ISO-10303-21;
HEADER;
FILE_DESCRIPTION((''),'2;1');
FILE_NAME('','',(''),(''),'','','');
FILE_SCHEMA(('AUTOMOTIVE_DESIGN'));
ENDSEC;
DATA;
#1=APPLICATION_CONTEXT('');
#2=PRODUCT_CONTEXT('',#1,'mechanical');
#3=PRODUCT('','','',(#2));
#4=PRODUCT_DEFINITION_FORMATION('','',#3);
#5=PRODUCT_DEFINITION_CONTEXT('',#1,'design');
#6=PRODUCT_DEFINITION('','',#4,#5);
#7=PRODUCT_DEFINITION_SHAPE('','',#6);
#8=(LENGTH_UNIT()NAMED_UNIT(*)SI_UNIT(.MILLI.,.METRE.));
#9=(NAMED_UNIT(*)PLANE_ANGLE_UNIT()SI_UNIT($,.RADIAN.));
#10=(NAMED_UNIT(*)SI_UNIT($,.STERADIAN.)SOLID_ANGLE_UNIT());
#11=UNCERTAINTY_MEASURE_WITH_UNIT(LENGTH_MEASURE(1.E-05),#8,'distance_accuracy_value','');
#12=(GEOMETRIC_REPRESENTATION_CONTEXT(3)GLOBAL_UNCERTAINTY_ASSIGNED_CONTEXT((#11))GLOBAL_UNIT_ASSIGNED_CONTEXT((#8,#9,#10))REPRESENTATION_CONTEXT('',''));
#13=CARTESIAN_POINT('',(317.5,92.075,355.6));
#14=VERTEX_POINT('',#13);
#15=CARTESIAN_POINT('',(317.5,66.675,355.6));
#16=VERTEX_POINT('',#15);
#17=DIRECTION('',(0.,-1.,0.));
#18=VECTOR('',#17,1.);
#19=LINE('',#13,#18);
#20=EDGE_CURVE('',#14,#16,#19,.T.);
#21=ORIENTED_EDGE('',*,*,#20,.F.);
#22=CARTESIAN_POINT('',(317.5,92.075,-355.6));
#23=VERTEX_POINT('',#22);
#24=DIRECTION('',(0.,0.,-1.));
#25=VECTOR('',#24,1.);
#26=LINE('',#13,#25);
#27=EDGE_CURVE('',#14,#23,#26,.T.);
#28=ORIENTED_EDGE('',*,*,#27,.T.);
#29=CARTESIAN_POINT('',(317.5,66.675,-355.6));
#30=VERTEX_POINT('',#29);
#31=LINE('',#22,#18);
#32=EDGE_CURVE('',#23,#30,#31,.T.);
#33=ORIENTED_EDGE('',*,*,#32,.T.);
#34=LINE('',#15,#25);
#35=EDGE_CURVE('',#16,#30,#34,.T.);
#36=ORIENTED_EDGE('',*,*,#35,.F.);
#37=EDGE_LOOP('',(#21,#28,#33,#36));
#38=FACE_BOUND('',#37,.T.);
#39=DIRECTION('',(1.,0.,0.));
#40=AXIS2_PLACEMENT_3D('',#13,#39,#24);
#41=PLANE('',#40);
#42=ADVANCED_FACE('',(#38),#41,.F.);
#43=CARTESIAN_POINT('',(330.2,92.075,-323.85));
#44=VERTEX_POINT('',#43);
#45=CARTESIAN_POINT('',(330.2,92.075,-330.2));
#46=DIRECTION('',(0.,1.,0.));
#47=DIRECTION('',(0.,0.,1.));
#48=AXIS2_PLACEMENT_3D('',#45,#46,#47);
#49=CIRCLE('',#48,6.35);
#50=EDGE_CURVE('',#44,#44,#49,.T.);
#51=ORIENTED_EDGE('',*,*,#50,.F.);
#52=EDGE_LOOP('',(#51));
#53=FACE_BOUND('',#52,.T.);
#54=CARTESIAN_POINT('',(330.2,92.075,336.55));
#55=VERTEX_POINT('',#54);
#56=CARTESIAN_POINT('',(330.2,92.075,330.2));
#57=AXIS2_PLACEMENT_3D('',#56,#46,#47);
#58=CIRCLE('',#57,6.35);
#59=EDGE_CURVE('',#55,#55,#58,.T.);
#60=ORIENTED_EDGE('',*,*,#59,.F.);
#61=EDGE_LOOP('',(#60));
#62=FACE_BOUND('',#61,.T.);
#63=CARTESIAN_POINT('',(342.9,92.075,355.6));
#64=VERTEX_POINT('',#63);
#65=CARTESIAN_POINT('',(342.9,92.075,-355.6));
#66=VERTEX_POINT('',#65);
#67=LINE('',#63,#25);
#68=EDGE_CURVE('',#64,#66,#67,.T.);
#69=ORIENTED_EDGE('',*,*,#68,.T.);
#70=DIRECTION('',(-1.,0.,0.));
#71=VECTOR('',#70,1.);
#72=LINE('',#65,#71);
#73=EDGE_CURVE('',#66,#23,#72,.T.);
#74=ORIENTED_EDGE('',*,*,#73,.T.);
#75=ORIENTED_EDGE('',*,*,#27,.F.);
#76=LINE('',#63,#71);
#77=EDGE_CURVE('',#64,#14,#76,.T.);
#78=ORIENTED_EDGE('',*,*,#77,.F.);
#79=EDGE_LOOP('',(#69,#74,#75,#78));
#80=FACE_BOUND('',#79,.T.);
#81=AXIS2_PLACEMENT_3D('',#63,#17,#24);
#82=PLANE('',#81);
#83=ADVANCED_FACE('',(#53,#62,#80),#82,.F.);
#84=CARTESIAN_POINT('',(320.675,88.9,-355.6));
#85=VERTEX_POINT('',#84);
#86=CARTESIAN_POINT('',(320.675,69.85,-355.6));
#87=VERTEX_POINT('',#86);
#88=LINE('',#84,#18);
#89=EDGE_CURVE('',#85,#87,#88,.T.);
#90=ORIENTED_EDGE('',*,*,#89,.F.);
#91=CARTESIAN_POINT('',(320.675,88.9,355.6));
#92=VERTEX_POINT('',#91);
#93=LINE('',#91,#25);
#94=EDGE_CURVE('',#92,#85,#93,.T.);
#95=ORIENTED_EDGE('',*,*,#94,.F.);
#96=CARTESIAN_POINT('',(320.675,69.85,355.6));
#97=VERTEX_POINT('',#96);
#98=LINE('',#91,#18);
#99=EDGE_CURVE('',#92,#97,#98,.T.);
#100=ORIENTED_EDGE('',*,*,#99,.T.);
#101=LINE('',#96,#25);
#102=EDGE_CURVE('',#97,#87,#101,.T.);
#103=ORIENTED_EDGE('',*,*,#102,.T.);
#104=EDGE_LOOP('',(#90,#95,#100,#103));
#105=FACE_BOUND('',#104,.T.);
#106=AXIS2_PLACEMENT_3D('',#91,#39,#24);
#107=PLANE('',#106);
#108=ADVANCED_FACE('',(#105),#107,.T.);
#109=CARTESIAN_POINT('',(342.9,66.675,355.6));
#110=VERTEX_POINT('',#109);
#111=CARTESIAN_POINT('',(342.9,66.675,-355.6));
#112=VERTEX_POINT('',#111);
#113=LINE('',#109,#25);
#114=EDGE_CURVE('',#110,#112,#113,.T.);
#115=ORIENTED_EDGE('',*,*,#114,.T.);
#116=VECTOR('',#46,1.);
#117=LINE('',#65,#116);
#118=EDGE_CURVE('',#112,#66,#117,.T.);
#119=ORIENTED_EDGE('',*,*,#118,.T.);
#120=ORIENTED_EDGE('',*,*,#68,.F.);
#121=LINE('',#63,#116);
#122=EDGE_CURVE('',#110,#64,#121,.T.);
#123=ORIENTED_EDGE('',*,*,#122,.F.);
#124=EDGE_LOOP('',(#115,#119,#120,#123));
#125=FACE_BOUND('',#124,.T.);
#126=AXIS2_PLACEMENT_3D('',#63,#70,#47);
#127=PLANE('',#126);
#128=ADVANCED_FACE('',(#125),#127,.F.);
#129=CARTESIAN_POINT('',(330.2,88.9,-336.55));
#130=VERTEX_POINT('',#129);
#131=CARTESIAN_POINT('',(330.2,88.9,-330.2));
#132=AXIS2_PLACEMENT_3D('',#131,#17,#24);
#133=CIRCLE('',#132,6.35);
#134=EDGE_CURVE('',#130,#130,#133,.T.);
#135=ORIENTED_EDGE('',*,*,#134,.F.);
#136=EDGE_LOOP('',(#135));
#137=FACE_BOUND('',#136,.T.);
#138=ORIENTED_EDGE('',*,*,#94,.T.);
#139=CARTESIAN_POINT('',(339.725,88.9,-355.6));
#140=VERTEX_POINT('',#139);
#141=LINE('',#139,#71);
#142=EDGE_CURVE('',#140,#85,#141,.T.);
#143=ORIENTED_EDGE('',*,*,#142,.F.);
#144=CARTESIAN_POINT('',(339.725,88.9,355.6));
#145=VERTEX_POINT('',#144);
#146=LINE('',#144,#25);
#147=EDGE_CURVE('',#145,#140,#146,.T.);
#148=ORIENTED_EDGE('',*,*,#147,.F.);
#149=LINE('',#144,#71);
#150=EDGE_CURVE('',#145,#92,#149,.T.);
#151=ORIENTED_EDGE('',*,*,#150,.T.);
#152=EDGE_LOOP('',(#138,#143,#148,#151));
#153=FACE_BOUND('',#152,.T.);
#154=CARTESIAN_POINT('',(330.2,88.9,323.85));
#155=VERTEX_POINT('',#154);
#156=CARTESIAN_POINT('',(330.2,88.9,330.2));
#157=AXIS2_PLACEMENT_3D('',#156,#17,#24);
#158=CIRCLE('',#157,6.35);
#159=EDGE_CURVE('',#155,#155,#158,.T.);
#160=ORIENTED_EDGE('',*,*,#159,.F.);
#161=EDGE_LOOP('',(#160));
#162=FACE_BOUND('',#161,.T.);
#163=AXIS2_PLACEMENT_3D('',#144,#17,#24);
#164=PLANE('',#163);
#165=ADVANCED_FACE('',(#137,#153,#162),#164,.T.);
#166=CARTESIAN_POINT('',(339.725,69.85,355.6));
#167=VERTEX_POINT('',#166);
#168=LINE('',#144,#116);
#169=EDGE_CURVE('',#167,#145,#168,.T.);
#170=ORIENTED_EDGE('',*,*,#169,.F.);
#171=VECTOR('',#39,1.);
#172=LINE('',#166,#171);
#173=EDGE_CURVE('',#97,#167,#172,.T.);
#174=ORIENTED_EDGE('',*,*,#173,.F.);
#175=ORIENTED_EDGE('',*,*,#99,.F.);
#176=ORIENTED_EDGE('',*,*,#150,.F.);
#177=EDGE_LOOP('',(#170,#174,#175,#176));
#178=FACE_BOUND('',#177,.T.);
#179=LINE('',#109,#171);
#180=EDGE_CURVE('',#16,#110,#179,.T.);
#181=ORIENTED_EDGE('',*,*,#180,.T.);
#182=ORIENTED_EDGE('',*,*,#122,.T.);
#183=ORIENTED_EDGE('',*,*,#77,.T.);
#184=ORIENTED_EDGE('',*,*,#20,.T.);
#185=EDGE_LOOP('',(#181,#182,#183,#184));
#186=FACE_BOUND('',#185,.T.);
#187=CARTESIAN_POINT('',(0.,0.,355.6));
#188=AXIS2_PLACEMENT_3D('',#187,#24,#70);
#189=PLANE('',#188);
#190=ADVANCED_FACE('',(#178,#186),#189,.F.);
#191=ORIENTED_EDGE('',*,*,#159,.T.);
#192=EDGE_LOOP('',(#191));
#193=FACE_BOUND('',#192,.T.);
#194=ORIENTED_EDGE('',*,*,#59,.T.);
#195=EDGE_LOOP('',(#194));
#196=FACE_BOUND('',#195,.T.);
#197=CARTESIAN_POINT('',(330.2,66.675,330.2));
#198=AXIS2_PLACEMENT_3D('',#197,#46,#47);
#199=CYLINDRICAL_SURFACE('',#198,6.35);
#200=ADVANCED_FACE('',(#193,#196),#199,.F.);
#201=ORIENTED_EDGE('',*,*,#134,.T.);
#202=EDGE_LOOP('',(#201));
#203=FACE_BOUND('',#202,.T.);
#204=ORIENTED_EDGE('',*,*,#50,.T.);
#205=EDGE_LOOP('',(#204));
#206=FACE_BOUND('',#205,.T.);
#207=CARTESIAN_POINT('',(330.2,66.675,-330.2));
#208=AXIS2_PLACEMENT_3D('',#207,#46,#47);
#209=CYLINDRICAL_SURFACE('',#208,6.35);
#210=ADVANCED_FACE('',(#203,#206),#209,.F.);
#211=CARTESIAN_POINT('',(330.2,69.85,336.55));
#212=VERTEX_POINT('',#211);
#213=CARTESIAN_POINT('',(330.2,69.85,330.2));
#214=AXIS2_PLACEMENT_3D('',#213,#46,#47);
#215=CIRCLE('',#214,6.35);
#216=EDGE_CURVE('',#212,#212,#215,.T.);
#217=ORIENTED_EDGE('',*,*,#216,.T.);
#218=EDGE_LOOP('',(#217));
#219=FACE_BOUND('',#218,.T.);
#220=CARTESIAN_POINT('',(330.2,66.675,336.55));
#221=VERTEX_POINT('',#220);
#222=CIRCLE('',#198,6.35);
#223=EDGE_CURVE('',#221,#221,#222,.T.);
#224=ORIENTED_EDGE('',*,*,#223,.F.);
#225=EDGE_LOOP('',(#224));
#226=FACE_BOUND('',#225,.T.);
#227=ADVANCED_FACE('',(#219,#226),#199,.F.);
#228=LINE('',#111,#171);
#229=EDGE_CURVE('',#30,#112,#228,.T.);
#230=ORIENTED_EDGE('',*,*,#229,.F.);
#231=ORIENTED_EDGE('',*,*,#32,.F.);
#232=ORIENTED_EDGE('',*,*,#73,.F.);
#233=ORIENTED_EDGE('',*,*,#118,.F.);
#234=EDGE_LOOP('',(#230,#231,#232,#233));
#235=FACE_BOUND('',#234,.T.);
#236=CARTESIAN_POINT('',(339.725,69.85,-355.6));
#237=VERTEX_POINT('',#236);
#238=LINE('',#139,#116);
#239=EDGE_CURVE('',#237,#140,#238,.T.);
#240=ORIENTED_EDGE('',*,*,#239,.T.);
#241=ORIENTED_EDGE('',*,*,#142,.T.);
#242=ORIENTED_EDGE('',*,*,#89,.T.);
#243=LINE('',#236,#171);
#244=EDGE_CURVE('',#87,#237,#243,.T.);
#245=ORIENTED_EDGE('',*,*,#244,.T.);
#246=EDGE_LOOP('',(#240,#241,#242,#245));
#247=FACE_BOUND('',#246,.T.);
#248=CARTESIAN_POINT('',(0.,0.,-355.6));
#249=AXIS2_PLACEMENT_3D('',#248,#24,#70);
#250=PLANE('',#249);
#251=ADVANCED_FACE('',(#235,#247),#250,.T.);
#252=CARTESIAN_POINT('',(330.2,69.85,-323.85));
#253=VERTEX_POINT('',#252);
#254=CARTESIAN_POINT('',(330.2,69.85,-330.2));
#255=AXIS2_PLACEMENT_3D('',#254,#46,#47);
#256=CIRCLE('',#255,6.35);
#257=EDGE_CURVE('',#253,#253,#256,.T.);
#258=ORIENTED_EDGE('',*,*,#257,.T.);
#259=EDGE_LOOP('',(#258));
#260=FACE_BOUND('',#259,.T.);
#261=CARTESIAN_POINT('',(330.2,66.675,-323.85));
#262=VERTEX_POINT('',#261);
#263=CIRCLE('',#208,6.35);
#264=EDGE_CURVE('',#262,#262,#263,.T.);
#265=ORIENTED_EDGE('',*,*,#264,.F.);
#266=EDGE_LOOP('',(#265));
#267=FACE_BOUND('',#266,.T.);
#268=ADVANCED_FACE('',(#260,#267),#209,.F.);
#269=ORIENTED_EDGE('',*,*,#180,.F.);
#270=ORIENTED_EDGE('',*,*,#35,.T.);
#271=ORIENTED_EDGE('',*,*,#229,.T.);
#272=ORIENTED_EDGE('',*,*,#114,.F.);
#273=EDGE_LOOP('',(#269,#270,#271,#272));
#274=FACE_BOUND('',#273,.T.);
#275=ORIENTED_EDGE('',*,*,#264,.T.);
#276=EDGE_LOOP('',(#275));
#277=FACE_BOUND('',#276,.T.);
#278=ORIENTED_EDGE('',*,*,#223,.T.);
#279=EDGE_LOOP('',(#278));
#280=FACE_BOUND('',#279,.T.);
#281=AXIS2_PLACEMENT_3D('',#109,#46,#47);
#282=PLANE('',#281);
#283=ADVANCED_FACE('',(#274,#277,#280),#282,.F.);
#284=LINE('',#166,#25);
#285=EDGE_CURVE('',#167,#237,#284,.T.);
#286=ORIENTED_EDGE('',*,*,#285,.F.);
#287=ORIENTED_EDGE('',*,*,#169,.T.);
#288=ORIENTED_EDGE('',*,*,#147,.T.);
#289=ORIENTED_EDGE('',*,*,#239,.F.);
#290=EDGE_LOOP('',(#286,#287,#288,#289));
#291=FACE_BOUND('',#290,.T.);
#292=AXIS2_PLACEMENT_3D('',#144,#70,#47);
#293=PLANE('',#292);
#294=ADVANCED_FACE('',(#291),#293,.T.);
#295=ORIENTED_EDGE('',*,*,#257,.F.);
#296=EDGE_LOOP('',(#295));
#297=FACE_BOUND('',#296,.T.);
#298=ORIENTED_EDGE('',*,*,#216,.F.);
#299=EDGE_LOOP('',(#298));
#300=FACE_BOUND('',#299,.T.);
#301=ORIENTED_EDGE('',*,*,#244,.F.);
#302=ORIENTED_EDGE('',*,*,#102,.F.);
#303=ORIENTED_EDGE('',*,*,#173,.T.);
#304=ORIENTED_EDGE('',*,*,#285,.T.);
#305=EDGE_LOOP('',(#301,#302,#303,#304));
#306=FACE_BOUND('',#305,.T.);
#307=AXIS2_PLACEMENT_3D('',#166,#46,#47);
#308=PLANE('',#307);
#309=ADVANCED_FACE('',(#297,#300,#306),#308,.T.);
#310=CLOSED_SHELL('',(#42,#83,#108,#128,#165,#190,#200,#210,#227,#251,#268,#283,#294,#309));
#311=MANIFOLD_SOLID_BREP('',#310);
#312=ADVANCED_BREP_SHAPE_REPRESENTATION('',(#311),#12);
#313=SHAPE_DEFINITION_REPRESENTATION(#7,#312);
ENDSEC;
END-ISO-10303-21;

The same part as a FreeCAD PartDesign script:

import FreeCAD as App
import Part
import Sketcher

V = App.Vector
Q = App.Units.Quantity

doc = App.newDocument("Part")
body = doc.addObject("PartDesign::Body", "Body")

# Sketch on XY plane
sketch1 = body.newObject("Sketcher::SketchObject", "Sketch")
sketch1.AttachmentSupport = (doc.getObject("XY_Plane"), [""])
sketch1.MapMode = "FlatFace"
sketch1.addGeometry([
    Part.LineSegment(V(318, 92, 0), V(318, 67, 0)),  # 0
    Part.LineSegment(V(318, 67, 0), V(343, 67, 0)),  # 1
    Part.LineSegment(V(343, 67, 0), V(343, 92, 0)),  # 2
    Part.LineSegment(V(343, 92, 0), V(318, 92, 0)),  # 3
    Part.LineSegment(V(340, 70, 0), V(321, 70, 0)),  # 4
    Part.LineSegment(V(321, 70, 0), V(321, 89, 0)),  # 5
    Part.LineSegment(V(321, 89, 0), V(340, 89, 0)),  # 6
    Part.LineSegment(V(340, 89, 0), V(340, 70, 0)),  # 7
], False)
sketch1.addConstraint([
    Sketcher.Constraint("Coincident", 0, 2, 1, 1),
    Sketcher.Constraint("Coincident", 1, 2, 2, 1),
    Sketcher.Constraint("Coincident", 2, 2, 3, 1),
    Sketcher.Constraint("Coincident", 3, 2, 0, 1),
    Sketcher.Constraint("Coincident", 4, 2, 5, 1),
    Sketcher.Constraint("Coincident", 5, 2, 6, 1),
    Sketcher.Constraint("Coincident", 6, 2, 7, 1),
    Sketcher.Constraint("Coincident", 7, 2, 4, 1),
    Sketcher.Constraint("Vertical", 0),
    Sketcher.Constraint("Horizontal", 1),
    Sketcher.Constraint("Vertical", 2),
    Sketcher.Constraint("Horizontal", 3),
    Sketcher.Constraint("Horizontal", 4),
    Sketcher.Constraint("Vertical", 5),
    Sketcher.Constraint("Horizontal", 6),
    Sketcher.Constraint("Vertical", 7),
    Sketcher.Constraint("Equal", 3, 0),
    Sketcher.Constraint("Equal", 6, 5),
    Sketcher.Constraint("DistanceX", 1, 1, 1, 2, Q("1 in")),
    Sketcher.Constraint("DistanceX", 4, 2, 4, 1, Q("0.75 in")),
    Sketcher.Constraint("DistanceX", -1, 1, 0, 2, Q("12.5 in")),
    Sketcher.Constraint("DistanceY", -1, 1, 5, 2, Q("3.5 in")),
    Sketcher.Constraint("DistanceY", -1, 1, 0, 2, Q("2.625 in")),
    Sketcher.Constraint("DistanceX", -1, 1, 4, 2, Q("12.625 in")),
])
pad1 = body.newObject("PartDesign::Pad", "Pad")
pad1.Profile = sketch1
pad1.Type = "TwoLengths"
pad1.Length = Q("14 in")
pad1.Length2 = Q("14 in")

# Sketch on XZ plane
sketch2 = body.newObject("Sketcher::SketchObject", "Sketch001")
sketch2.AttachmentSupport = (doc.getObject("XZ_Plane"), [""])
sketch2.MapMode = "FlatFace"
sketch2.AttachmentOffset = App.Placement(V(0, 0, -3.625 * 25.4), App.Rotation())
sketch2.addGeometry([
    Part.Circle(V(330, 330, 0), V(0, 0, 1), 6),
    Part.Circle(V(330, -330, 0), V(0, 0, 1), 6),
], False)
sketch2.addConstraint([
    Sketcher.Constraint("Equal", 0, 1),
    Sketcher.Constraint("Symmetric", 0, 3, 1, 3, -1),
    Sketcher.Constraint("Diameter", 0, Q("0.5 in")),
    Sketcher.Constraint("DistanceX", -1, 1, 0, 3, Q("13 in")),
    Sketcher.Constraint("DistanceY", -1, 1, 0, 3, Q("13 in")),
])
pocket1 = body.newObject("PartDesign::Pocket", "Pocket")
pocket1.Profile = sketch2
pocket1.Type = "ThroughAll"
pocket1.Reversed = True

doc.recompute()
